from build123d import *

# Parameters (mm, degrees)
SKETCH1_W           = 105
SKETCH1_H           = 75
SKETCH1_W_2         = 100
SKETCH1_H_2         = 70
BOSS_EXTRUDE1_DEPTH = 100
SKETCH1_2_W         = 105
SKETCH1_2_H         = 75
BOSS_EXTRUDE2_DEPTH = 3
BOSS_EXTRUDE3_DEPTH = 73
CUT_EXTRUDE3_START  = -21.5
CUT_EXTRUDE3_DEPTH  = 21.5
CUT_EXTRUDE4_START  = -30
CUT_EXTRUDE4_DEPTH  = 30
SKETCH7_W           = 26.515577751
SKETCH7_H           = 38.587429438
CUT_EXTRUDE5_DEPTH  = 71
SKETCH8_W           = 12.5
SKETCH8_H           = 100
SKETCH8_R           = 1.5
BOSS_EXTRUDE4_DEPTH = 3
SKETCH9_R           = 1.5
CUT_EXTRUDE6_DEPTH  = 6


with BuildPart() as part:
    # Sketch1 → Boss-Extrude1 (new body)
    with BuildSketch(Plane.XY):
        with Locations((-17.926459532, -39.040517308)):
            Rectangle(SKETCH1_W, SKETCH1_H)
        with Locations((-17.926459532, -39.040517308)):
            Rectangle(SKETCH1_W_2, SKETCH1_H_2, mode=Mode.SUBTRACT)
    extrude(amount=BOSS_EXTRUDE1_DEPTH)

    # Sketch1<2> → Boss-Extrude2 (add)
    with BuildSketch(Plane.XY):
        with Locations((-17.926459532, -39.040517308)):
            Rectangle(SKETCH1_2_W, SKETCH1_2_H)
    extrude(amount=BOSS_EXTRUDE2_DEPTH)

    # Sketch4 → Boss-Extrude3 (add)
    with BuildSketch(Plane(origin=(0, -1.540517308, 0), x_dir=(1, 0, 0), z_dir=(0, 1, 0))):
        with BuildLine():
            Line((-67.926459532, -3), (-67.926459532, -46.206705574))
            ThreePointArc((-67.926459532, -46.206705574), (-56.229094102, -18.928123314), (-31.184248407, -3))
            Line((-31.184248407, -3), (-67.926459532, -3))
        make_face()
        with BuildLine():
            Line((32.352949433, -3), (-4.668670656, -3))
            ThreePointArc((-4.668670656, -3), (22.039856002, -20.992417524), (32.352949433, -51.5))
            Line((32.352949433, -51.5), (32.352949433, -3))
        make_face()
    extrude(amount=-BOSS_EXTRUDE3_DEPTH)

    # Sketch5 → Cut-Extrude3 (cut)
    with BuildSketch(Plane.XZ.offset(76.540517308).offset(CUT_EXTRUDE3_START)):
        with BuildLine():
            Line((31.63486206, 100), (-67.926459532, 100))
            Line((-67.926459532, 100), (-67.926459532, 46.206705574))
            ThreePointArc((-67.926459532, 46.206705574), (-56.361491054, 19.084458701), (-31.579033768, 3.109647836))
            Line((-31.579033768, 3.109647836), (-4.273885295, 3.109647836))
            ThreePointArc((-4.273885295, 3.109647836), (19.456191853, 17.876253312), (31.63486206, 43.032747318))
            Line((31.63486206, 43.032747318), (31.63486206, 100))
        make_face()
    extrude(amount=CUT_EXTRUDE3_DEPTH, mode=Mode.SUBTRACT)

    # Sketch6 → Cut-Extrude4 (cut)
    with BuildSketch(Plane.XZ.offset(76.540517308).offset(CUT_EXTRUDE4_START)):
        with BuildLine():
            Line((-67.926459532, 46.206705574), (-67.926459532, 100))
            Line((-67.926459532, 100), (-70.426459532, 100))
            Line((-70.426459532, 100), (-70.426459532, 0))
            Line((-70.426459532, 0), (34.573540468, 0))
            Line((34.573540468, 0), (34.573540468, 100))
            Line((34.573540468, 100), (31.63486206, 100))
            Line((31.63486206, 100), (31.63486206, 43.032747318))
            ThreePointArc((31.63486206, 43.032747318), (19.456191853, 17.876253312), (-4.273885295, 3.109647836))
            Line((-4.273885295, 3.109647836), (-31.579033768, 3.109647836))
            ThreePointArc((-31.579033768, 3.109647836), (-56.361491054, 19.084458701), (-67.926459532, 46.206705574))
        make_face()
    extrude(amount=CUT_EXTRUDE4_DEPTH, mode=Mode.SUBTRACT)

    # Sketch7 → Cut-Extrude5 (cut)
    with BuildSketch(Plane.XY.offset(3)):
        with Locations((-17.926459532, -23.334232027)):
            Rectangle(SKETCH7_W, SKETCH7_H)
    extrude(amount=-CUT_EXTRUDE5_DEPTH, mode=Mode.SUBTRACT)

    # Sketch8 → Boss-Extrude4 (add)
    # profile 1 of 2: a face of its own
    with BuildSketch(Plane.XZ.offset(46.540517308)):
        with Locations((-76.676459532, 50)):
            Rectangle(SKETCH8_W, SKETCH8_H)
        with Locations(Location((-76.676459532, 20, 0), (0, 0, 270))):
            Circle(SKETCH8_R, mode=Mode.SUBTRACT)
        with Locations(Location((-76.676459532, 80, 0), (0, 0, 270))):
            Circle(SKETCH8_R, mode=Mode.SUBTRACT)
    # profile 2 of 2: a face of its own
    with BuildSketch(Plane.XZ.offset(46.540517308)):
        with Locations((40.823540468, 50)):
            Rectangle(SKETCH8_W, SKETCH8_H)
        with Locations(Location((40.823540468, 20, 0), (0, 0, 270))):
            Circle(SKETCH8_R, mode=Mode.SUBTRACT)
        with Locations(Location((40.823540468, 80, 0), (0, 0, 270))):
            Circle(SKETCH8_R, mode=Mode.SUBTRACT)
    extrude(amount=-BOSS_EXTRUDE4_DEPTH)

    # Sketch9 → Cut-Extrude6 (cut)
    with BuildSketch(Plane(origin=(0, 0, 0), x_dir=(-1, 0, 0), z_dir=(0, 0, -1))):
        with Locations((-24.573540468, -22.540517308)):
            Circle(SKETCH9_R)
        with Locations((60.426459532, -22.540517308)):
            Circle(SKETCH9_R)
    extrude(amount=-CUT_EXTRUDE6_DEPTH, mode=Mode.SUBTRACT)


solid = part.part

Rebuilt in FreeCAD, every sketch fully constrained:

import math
import FreeCAD as App
import Part
import Sketcher
from FreeCAD import Vector
Q = App.Units.Quantity

doc = App.newDocument("Part")
body = doc.addObject("PartDesign::Body", "Body")

# Sketch on XY plane
sketch1 = doc.addObject("Sketcher::SketchObject", "Sketch")
body.addObject(sketch1)
sketch1.AttachmentSupport = (doc.XY_Plane, [""])
sketch1.MapMode = "FlatFace"
sketch1.addGeometry([
    Part.LineSegment(Vector(-70, -2, 0), Vector(-70, -77, 0)),  # 0
    Part.LineSegment(Vector(-70, -77, 0), Vector(35, -77, 0)),  # 1
    Part.LineSegment(Vector(35, -77, 0), Vector(35, -2, 0)),  # 2
    Part.LineSegment(Vector(35, -2, 0), Vector(-70, -2, 0)),  # 3
    Part.LineSegment(Vector(32, -74, 0), Vector(-68, -74, 0)),  # 4
    Part.LineSegment(Vector(-68, -74, 0), Vector(-68, -4, 0)),  # 5
    Part.LineSegment(Vector(-68, -4, 0), Vector(32, -4, 0)),  # 6
    Part.LineSegment(Vector(32, -4, 0), Vector(32, -74, 0)),  # 7
], False)
sketch1.addConstraint([
    Sketcher.Constraint("Coincident", 0, 2, 1, 1),
    Sketcher.Constraint("Coincident", 1, 2, 2, 1),
    Sketcher.Constraint("Coincident", 2, 2, 3, 1),
    Sketcher.Constraint("Coincident", 3, 2, 0, 1),
    Sketcher.Constraint("Coincident", 4, 2, 5, 1),
    Sketcher.Constraint("Coincident", 5, 2, 6, 1),
    Sketcher.Constraint("Coincident", 6, 2, 7, 1),
    Sketcher.Constraint("Coincident", 7, 2, 4, 1),
    Sketcher.Constraint("Vertical", 0),
    Sketcher.Constraint("Horizontal", 1),
    Sketcher.Constraint("Vertical", 2),
    Sketcher.Constraint("Horizontal", 3),
    Sketcher.Constraint("Horizontal", 4),
    Sketcher.Constraint("Vertical", 5),
    Sketcher.Constraint("Horizontal", 6),
    Sketcher.Constraint("Vertical", 7),
    Sketcher.Constraint("DistanceX", 1, 1, 1, 2, Q("105 mm")),
    Sketcher.Constraint("DistanceX", 4, 2, 4, 1, Q("100 mm")),
    Sketcher.Constraint("DistanceY", 0, 2, 0, 1, Q("75 mm")),
    Sketcher.Constraint("DistanceY", 5, 1, 5, 2, Q("70 mm")),
    Sketcher.Constraint("DistanceX", 0, 2, 4, 2, Q("2.5 mm")),
    Sketcher.Constraint("DistanceY", 0, 2, 4, 2, Q("2.5 mm")),
    Sketcher.Constraint("DistanceX", 0, 2, -1, 1, Q("70.42646 mm")),
    Sketcher.Constraint("DistanceY", 0, 2, -1, 1, Q("76.540517 mm")),
])
pad1 = doc.addObject("PartDesign::Pad", "Pad")
body.addObject(pad1)
pad1.Profile = sketch1
pad1.Length = 100

# Sketch on XY plane
sketch2 = doc.addObject("Sketcher::SketchObject", "Sketch001")
body.addObject(sketch2)
sketch2.AttachmentSupport = (doc.XY_Plane, [""])
sketch2.MapMode = "FlatFace"
sketch2.addGeometry([
    Part.LineSegment(Vector(-70, -2, 0), Vector(-70, -77, 0)),
    Part.LineSegment(Vector(-70, -77, 0), Vector(35, -77, 0)),
    Part.LineSegment(Vector(35, -77, 0), Vector(35, -2, 0)),
    Part.LineSegment(Vector(35, -2, 0), Vector(-70, -2, 0)),
], False)
sketch2.addConstraint([
    Sketcher.Constraint("Coincident", 0, 2, 1, 1),
    Sketcher.Constraint("Coincident", 1, 2, 2, 1),
    Sketcher.Constraint("Coincident", 2, 2, 3, 1),
    Sketcher.Constraint("Coincident", 3, 2, 0, 1),
    Sketcher.Constraint("Vertical", 0),
    Sketcher.Constraint("Horizontal", 1),
    Sketcher.Constraint("Vertical", 2),
    Sketcher.Constraint("Horizontal", 3),
    Sketcher.Constraint("DistanceX", 1, 1, 1, 2, Q("105 mm")),
    Sketcher.Constraint("DistanceY", 0, 2, 0, 1, Q("75 mm")),
    Sketcher.Constraint("DistanceX", 0, 2, -1, 1, Q("70.42646 mm")),
    Sketcher.Constraint("DistanceY", 0, 2, -1, 1, Q("76.540517 mm")),
])
pad2 = doc.addObject("PartDesign::Pad", "Pad001")
body.addObject(pad2)
pad2.Profile = sketch2
pad2.Length = 3

# Sketch on XZ plane
sketch3 = doc.addObject("Sketcher::SketchObject", "Sketch002")
body.addObject(sketch3)
sketch3.AttachmentSupport = (doc.XZ_Plane, [""])
sketch3.MapMode = "FlatFace"
sketch3.AttachmentOffset = App.Placement(Vector(0, 0, 1.540517), App.Rotation())
sketch3.addGeometry([
    Part.LineSegment(Vector(-68, 3, 0), Vector(-68, 46, 0)),  # 0
    Part.ArcOfCircle(Part.Circle(Vector(-18, 52, 0), Vector(0, 0, 1), 50), math.radians(-174), math.radians(-105)),  # 1
    Part.LineSegment(Vector(-31, 3, 0), Vector(-68, 3, 0)),  # 2
    Part.LineSegment(Vector(32, 3, 0), Vector(-5, 3, 0)),  # 3
    Part.ArcOfCircle(Part.Circle(Vector(-18, 51, 0), Vector(0, 0, 1), 50), math.radians(-75), math.radians(0)),  # 4
    Part.LineSegment(Vector(32, 52, 0), Vector(32, 3, 0)),  # 5
], False)
sketch3.addConstraint([
    Sketcher.Constraint("Coincident", 0, 2, 1, 1),
    Sketcher.Constraint("Coincident", 1, 2, 2, 1),
    Sketcher.Constraint("Coincident", 2, 2, 0, 1),
    Sketcher.Constraint("Coincident", 3, 2, 4, 1),
    Sketcher.Constraint("Tangent", 4, 2, 5, 1),
    Sketcher.Constraint("Coincident", 5, 2, 3, 1),
    Sketcher.Constraint("Vertical", 0),
    Sketcher.Constraint("Horizontal", 2),
    Sketcher.Constraint("Horizontal", 3),
    Sketcher.Constraint("Vertical", 5),
    Sketcher.Constraint("Coincident", 4, 3, 1, 3),
    Sketcher.Constraint("Equal", 1, 4),
    Sketcher.Constraint("Horizontal", 2, 2, 3, 2),
    Sketcher.Constraint("DistanceY", 5, 2, 5, 1, Q("48.5 mm")),
    Sketcher.Constraint("DistanceY", -1, 1, 1, 2, Q("3 mm")),
    Sketcher.Constraint("DistanceX", 0, 2, 4, 3, Q("50 mm")),
    Sketcher.Constraint("Radius", 1, Q("50.279409 mm")),
    Sketcher.Constraint("DistanceX", 1, 3, -1, 1, Q("17.92646 mm")),
])
pad3 = doc.addObject("PartDesign::Pad", "Pad002")
body.addObject(pad3)
pad3.Profile = sketch3
pad3.Length = 73

# Sketch on XZ plane
sketch4 = doc.addObject("Sketcher::SketchObject", "Sketch003")
body.addObject(sketch4)
sketch4.AttachmentSupport = (doc.XZ_Plane, [""])
sketch4.MapMode = "FlatFace"
sketch4.AttachmentOffset = App.Placement(Vector(0, 0, 55.040517), App.Rotation())
sketch4.addGeometry([
    Part.LineSegment(Vector(32, 100, 0), Vector(-68, 100, 0)),  # 0
    Part.LineSegment(Vector(-68, 100, 0), Vector(-68, 46, 0)),  # 1
    Part.ArcOfCircle(Part.Circle(Vector(-18, 52, 0), Vector(0, 0, 1), 50), math.radians(-174), math.radians(-106)),  # 2
    Part.LineSegment(Vector(-32, 3, 0), Vector(-4, 3, 0)),  # 3
    Part.ArcOfCircle(Part.Circle(Vector(-18, 52, 0), Vector(0, 0, 1), 50), math.radians(-74), math.radians(-10)),  # 4
    Part.LineSegment(Vector(32, 43, 0), Vector(32, 100, 0)),  # 5
], False)
sketch4.addConstraint([
    Sketcher.Constraint("Coincident", 0, 2, 1, 1),
    Sketcher.Constraint("Coincident", 1, 2, 2, 1),
    Sketcher.Constraint("Coincident", 2, 2, 3, 1),
    Sketcher.Constraint("Coincident", 3, 2, 4, 1),
    Sketcher.Constraint("Coincident", 4, 2, 5, 1),
    Sketcher.Constraint("Coincident", 5, 2, 0, 1),
    Sketcher.Constraint("Horizontal", 0),
    Sketcher.Constraint("Vertical", 1),
    Sketcher.Constraint("Horizontal", 3),
    Sketcher.Constraint("Vertical", 5),
    Sketcher.Constraint("Coincident", 4, 3, 2, 3),
    Sketcher.Constraint("Equal", 2, 4),
    Sketcher.Constraint("DistanceY", -1, 1, 0, 2, Q("100 mm")),
    Sketcher.Constraint("DistanceX", 0, 2, 2, 3, Q("50 mm")),
    Sketcher.Constraint("DistanceY", -1, 1, 2, 3, Q("51.5 mm")),
    Sketcher.Constraint("Radius", 2, Q("50.279409 mm")),
    Sketcher.Constraint("DistanceX", 0, 2, 0, 1, Q("99.561322 mm")),
    Sketcher.Constraint("DistanceX", 3, 1, 3, 2, Q("27.305148 mm")),
    Sketcher.Constraint("DistanceX", 2, 3, -1, 1, Q("17.92646 mm")),
])
pocket1 = doc.addObject("PartDesign::Pocket", "Pocket")
body.addObject(pocket1)
pocket1.Profile = sketch4
pocket1.Length = 21.5
pocket1.Reversed = True

# Sketch on XZ plane
sketch5 = doc.addObject("Sketcher::SketchObject", "Sketch004")
body.addObject(sketch5)
sketch5.AttachmentSupport = (doc.XZ_Plane, [""])
sketch5.MapMode = "FlatFace"
sketch5.AttachmentOffset = App.Placement(Vector(0, 0, 46.540517), App.Rotation())
sketch5.addGeometry([
    Part.LineSegment(Vector(-67.9, 46.2, 0), Vector(-67.9, 100, 0)),  # 0
    Part.LineSegment(Vector(-67.9, 100, 0), Vector(-70.4, 100, 0)),  # 1
    Part.LineSegment(Vector(-70.4, 100, 0), Vector(-70.4, 0, 0)),  # 2
    Part.LineSegment(Vector(-70.4, 0, 0), Vector(34.6, 0, 0)),  # 3
    Part.LineSegment(Vector(34.6, 0, 0), Vector(34.6, 100, 0)),  # 4
    Part.LineSegment(Vector(34.6, 100, 0), Vector(31.6, 100, 0)),  # 5
    Part.LineSegment(Vector(31.6, 100, 0), Vector(31.6, 43, 0)),  # 6
    Part.ArcOfCircle(Part.Circle(Vector(-17.9, 51.5, 0), Vector(0, 0, 1), 50.3), math.radians(-74), math.radians(-10)),  # 7
    Part.LineSegment(Vector(-4.3, 3.1, 0), Vector(-31.6, 3.1, 0)),  # 8
    Part.ArcOfCircle(Part.Circle(Vector(-17.9, 51.5, 0), Vector(0, 0, 1), 50.3), math.radians(-174), math.radians(-106)),  # 9
], False)
sketch5.addConstraint([
    Sketcher.Constraint("Coincident", 0, 2, 1, 1),
    Sketcher.Constraint("Coincident", 1, 2, 2, 1),
    Sketcher.Constraint("Coincident", 2, 2, 3, 1),
    Sketcher.Constraint("Coincident", 3, 2, 4, 1),
    Sketcher.Constraint("Coincident", 4, 2, 5, 1),
    Sketcher.Constraint("Coincident", 5, 2, 6, 1),
    Sketcher.Constraint("Coincident", 6, 2, 7, 2),
    Sketcher.Constraint("Coincident", 7, 1, 8, 1),
    Sketcher.Constraint("Coincident", 8, 2, 9, 2),
    Sketcher.Constraint("Coincident", 9, 1, 0, 1),
    Sketcher.Constraint("Vertical", 0),
    Sketcher.Constraint("Horizontal", 1),
    Sketcher.Constraint("Vertical", 2),
    Sketcher.Constraint("Horizontal", 3),
    Sketcher.Constraint("Vertical", 4),
    Sketcher.Constraint("Horizontal", 5),
    Sketcher.Constraint("Vertical", 6),
    Sketcher.Constraint("Horizontal", 8),
    Sketcher.Constraint("Coincident", 9, 3, 7, 3),
    Sketcher.Constraint("Equal", 7, 9),
    Sketcher.Constraint("PointOnObject", 2, 2, -1),
    Sketcher.Constraint("Horizontal", 1, 2, 4, 2),
    Sketcher.Constraint("DistanceX", 3, 1, 3, 2, Q("105 mm")),
    Sketcher.Constraint("DistanceY", 2, 2, 2, 1, Q("100 mm")),
    Sketcher.Constraint("DistanceX", 1, 2, 1, 1, Q("2.5 mm")),
    Sketcher.Constraint("DistanceX", 0, 2, 9, 3, Q("50 mm")),
    Sketcher.Constraint("DistanceY", -1, 1, 7, 3, Q("51.5 mm")),
    Sketcher.Constraint("Radius", 7, Q("50.279409 mm")),
    Sketcher.Constraint("DistanceX", 5, 2, 5, 1, Q("2.938678 mm")),
    Sketcher.Constraint("DistanceX", 8, 2, 8, 1, Q("27.305148 mm")),
    Sketcher.Constraint("DistanceX", 7, 3, -1, 1, Q("17.92646 mm")),
])
pocket2 = doc.addObject("PartDesign::Pocket", "Pocket001")
body.addObject(pocket2)
pocket2.Profile = sketch5
pocket2.Length = 30
pocket2.Reversed = True

# Sketch on XY plane
sketch6 = doc.addObject("Sketcher::SketchObject", "Sketch005")
body.addObject(sketch6)
sketch6.AttachmentSupport = (doc.XY_Plane, [""])
sketch6.MapMode = "FlatFace"
sketch6.AttachmentOffset = App.Placement(Vector(0, 0, 3), App.Rotation())
sketch6.addGeometry([
    Part.LineSegment(Vector(-31, -4, 0), Vector(-31, -43, 0)),
    Part.LineSegment(Vector(-31, -43, 0), Vector(-5, -43, 0)),
    Part.LineSegment(Vector(-5, -43, 0), Vector(-5, -4, 0)),
    Part.LineSegment(Vector(-5, -4, 0), Vector(-31, -4, 0)),
], False)
sketch6.addConstraint([
    Sketcher.Constraint("Coincident", 0, 2, 1, 1),
    Sketcher.Constraint("Coincident", 1, 2, 2, 1),
    Sketcher.Constraint("Coincident", 2, 2, 3, 1),
    Sketcher.Constraint("Coincident", 3, 2, 0, 1),
    Sketcher.Constraint("Vertical", 0),
    Sketcher.Constraint("Horizontal", 1),
    Sketcher.Constraint("Vertical", 2),
    Sketcher.Constraint("Horizontal", 3),
    Sketcher.Constraint("DistanceY", 0, 2, 0, 1, Q("38.587429 mm")),
    Sketcher.Constraint("DistanceX", 1, 1, 1, 2, Q("26.515578 mm")),
    Sketcher.Constraint("DistanceX", 0, 2, -1, 1, Q("31.184248 mm")),
    Sketcher.Constraint("DistanceY", 0, 2, -1, 1, Q("42.627947 mm")),
])
pocket3 = doc.addObject("PartDesign::Pocket", "Pocket002")
body.addObject(pocket3)
pocket3.Profile = sketch6
pocket3.Length = 71

# Sketch on XZ plane
sketch7 = doc.addObject("Sketcher::SketchObject", "Sketch006")
body.addObject(sketch7)
sketch7.AttachmentSupport = (doc.XZ_Plane, [""])
sketch7.MapMode = "FlatFace"
sketch7.AttachmentOffset = App.Placement(Vector(0, 0, 46.540517), App.Rotation())
sketch7.addGeometry([
    Part.LineSegment(Vector(-82.9, 100, 0), Vector(-82.9, 0, 0)),  # 0
    Part.LineSegment(Vector(-82.9, 0, 0), Vector(-70.4, 0, 0)),  # 1
    Part.LineSegment(Vector(-70.4, 0, 0), Vector(-70.4, 100, 0)),  # 2
    Part.LineSegment(Vector(-70.4, 100, 0), Vector(-82.9, 100, 0)),  # 3
    Part.Circle(Vector(-76.7, 20, 0), Vector(0, 0, 1), 1.5),  # 4
    Part.Circle(Vector(-76.7, 80, 0), Vector(0, 0, 1), 1.5),  # 5
    Part.LineSegment(Vector(34.6, 100, 0), Vector(34.6, 0, 0)),  # 6
    Part.LineSegment(Vector(34.6, 0, 0), Vector(47.1, 0, 0)),  # 7
    Part.LineSegment(Vector(47.1, 0, 0), Vector(47.1, 100, 0)),  # 8
    Part.LineSegment(Vector(47.1, 100, 0), Vector(34.6, 100, 0)),  # 9
    Part.Circle(Vector(40.8, 20, 0), Vector(0, 0, 1), 1.5),  # 10
    Part.Circle(Vector(40.8, 80, 0), Vector(0, 0, 1), 1.5),  # 11
], False)
sketch7.addConstraint([
    Sketcher.Constraint("Coincident", 0, 2, 1, 1),
    Sketcher.Constraint("Coincident", 1, 2, 2, 1),
    Sketcher.Constraint("Coincident", 2, 2, 3, 1),
    Sketcher.Constraint("Coincident", 3, 2, 0, 1),
    Sketcher.Constraint("Coincident", 6, 2, 7, 1),
    Sketcher.Constraint("Coincident", 7, 2, 8, 1),
    Sketcher.Constraint("Coincident", 8, 2, 9, 1),
    Sketcher.Constraint("Coincident", 9, 2, 6, 1),
    Sketcher.Constraint("Vertical", 0),
    Sketcher.Constraint("Horizontal", 1),
    Sketcher.Constraint("Vertical", 2),
    Sketcher.Constraint("Horizontal", 3),
    Sketcher.Constraint("Vertical", 6),
    Sketcher.Constraint("Horizontal", 7),
    Sketcher.Constraint("Vertical", 8),
    Sketcher.Constraint("Horizontal", 9),
    Sketcher.Constraint("Equal", 4, 5),
    Sketcher.Constraint("Equal", 5, 10),
    Sketcher.Constraint("Equal", 10, 11),
    Sketcher.Constraint("PointOnObject", 0, 2, -1),
    Sketcher.Constraint("PointOnObject", 6, 2, -1),
    Sketcher.Constraint("Horizontal", 4, 3, 10, 3),
    Sketcher.Constraint("Horizontal", 5, 3, 11, 3),
    Sketcher.Constraint("Horizontal", 3, 2, 8, 2),
    Sketcher.Constraint("Vertical", 4, 3, 5, 3),
    Sketcher.Constraint("Vertical", 10, 3, 11, 3),
    Sketcher.Constraint("Equal", 3, 7),
    Sketcher.Constraint("Diameter", 4, Q("3 mm")),
    Sketcher.Constraint("DistanceY", 0, 2, 0, 1, Q("100 mm")),
    Sketcher.Constraint("DistanceX", 1, 1, 1, 2, Q("12.5 mm")),
    Sketcher.Constraint("DistanceY", -1, 1, 4, 3, Q("20 mm")),
    Sketcher.Constraint("DistanceY", -1, 1, 5, 3, Q("80 mm")),
    Sketcher.Constraint("DistanceX", 1, 2, 6, 2, Q("105 mm")),
    Sketcher.Constraint("DistanceX", 4, 3, 10, 3, Q("117.5 mm")),
    Sketcher.Constraint("DistanceX", 0, 2, 4, 3, Q("6.25 mm")),
    Sketcher.Constraint("DistanceX", 4, 3, -1, 1, Q("76.67646 mm")),
])
pad4 = doc.addObject("PartDesign::Pad", "Pad003")
body.addObject(pad4)
pad4.Profile = sketch7
pad4.Length = 3
pad4.Reversed = True

# Sketch on XY plane
sketch8 = doc.addObject("Sketcher::SketchObject", "Sketch007")
body.addObject(sketch8)
sketch8.AttachmentSupport = (doc.XY_Plane, [""])
sketch8.MapMode = "FlatFace"
sketch8.addGeometry([
    Part.Circle(Vector(24.6, -22.5, 0), Vector(0, 0, 1), 1.5),
    Part.Circle(Vector(-60.4, -22.5, 0), Vector(0, 0, 1), 1.5),
], False)
sketch8.addConstraint([
    Sketcher.Constraint("Equal", 0, 1),
    Sketcher.Constraint("Horizontal", 0, 3, 1, 3),
    Sketcher.Constraint("Diameter", 0, Q("3 mm")),
    Sketcher.Constraint("DistanceX", 1, 3, 0, 3, Q("85 mm")),
    Sketcher.Constraint("DistanceX", -1, 1, 0, 3, Q("24.57354 mm")),
    Sketcher.Constraint("DistanceY", 0, 3, -1, 1, Q("22.540517 mm")),
])
pocket4 = doc.addObject("PartDesign::Pocket", "Pocket003")
body.addObject(pocket4)
pocket4.Profile = sketch8
pocket4.Length = 6
pocket4.Reversed = True

doc.recompute()
